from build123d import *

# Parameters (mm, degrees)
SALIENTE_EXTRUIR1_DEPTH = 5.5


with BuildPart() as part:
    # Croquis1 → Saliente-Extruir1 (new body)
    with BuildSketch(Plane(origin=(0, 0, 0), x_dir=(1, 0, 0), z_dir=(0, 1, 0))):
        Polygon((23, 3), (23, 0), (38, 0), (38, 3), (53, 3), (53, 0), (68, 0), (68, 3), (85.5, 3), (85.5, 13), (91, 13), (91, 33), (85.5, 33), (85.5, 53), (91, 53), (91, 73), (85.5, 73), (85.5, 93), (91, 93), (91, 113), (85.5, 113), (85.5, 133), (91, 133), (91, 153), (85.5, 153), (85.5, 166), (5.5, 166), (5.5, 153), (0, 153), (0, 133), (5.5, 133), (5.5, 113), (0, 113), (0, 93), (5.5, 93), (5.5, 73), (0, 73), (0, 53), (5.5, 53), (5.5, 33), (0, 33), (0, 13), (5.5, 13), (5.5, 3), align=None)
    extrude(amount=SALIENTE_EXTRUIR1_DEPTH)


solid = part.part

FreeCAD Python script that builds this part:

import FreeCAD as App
import Part
import Sketcher
from FreeCAD import Vector

doc = App.newDocument("Part")
body = doc.addObject("PartDesign::Body", "Body")

# Sketch on XZ plane
sketch1 = doc.addObject("Sketcher::SketchObject", "Sketch")
body.addObject(sketch1)
sketch1.AttachmentSupport = (doc.XZ_Plane, [""])
sketch1.MapMode = "FlatFace"
sketch1.addGeometry([
    Part.LineSegment(Vector(23, -3, 0), Vector(23, 0, 0)),  # 0
    Part.LineSegment(Vector(23, 0, 0), Vector(38, 0, 0)),  # 1
    Part.LineSegment(Vector(38, 0, 0), Vector(38, -3, 0)),  # 2
    Part.LineSegment(Vector(38, -3, 0), Vector(53, -3, 0)),  # 3
    Part.LineSegment(Vector(53, -3, 0), Vector(53, 0, 0)),  # 4
    Part.LineSegment(Vector(53, 0, 0), Vector(68, 0, 0)),  # 5
    Part.LineSegment(Vector(68, 0, 0), Vector(68, -3, 0)),  # 6
    Part.LineSegment(Vector(68, -3, 0), Vector(85.5, -3, 0)),  # 7
    Part.LineSegment(Vector(85.5, -3, 0), Vector(85.5, -13, 0)),  # 8
    Part.LineSegment(Vector(85.5, -13, 0), Vector(91, -13, 0)),  # 9
    Part.LineSegment(Vector(91, -13, 0), Vector(91, -33, 0)),  # 10
    Part.LineSegment(Vector(91, -33, 0), Vector(85.5, -33, 0)),  # 11
    Part.LineSegment(Vector(85.5, -33, 0), Vector(85.5, -53, 0)),  # 12
    Part.LineSegment(Vector(85.5, -53, 0), Vector(91, -53, 0)),  # 13
    Part.LineSegment(Vector(91, -53, 0), Vector(91, -73, 0)),  # 14
    Part.LineSegment(Vector(91, -73, 0), Vector(85.5, -73, 0)),  # 15
    Part.LineSegment(Vector(85.5, -73, 0), Vector(85.5, -93, 0)),  # 16
    Part.LineSegment(Vector(85.5, -93, 0), Vector(91, -93, 0)),  # 17
    Part.LineSegment(Vector(91, -93, 0), Vector(91, -113, 0)),  # 18
    Part.LineSegment(Vector(91, -113, 0), Vector(85.5, -113, 0)),  # 19
    Part.LineSegment(Vector(85.5, -113, 0), Vector(85.5, -133, 0)),  # 20
    Part.LineSegment(Vector(85.5, -133, 0), Vector(91, -133, 0)),  # 21
    Part.LineSegment(Vector(91, -133, 0), Vector(91, -153, 0)),  # 22
    Part.LineSegment(Vector(91, -153, 0), Vector(85.5, -153, 0)),  # 23
    Part.LineSegment(Vector(85.5, -153, 0), Vector(85.5, -166, 0)),  # 24
    Part.LineSegment(Vector(85.5, -166, 0), Vector(5.5, -166, 0)),  # 25
    Part.LineSegment(Vector(5.5, -166, 0), Vector(5.5, -153, 0)),  # 26
    Part.LineSegment(Vector(5.5, -153, 0), Vector(0, -153, 0)),  # 27
    Part.LineSegment(Vector(0, -153, 0), Vector(0, -133, 0)),  # 28
    Part.LineSegment(Vector(0, -133, 0), Vector(5.5, -133, 0)),  # 29
    Part.LineSegment(Vector(5.5, -133, 0), Vector(5.5, -113, 0)),  # 30
    Part.LineSegment(Vector(5.5, -113, 0), Vector(0, -113, 0)),  # 31
    Part.LineSegment(Vector(0, -113, 0), Vector(0, -93, 0)),  # 32
    Part.LineSegment(Vector(0, -93, 0), Vector(5.5, -93, 0)),  # 33
    Part.LineSegment(Vector(5.5, -93, 0), Vector(5.5, -73, 0)),  # 34
    Part.LineSegment(Vector(5.5, -73, 0), Vector(0, -73, 0)),  # 35
    Part.LineSegment(Vector(0, -73, 0), Vector(0, -53, 0)),  # 36
    Part.LineSegment(Vector(0, -53, 0), Vector(5.5, -53, 0)),  # 37
    Part.LineSegment(Vector(5.5, -53, 0), Vector(5.5, -33, 0)),  # 38
    Part.LineSegment(Vector(5.5, -33, 0), Vector(0, -33, 0)),  # 39
    Part.LineSegment(Vector(0, -33, 0), Vector(0, -13, 0)),  # 40
    Part.LineSegment(Vector(0, -13, 0), Vector(5.5, -13, 0)),  # 41
    Part.LineSegment(Vector(5.5, -13, 0), Vector(5.5, -3, 0)),  # 42
    Part.LineSegment(Vector(5.5, -3, 0), Vector(23, -3, 0)),  # 43
], False)
sketch1.addConstraint([
    Sketcher.Constraint("Coincident", 0, 2, 1, 1),
    Sketcher.Constraint("Coincident", 1, 2, 2, 1),
    Sketcher.Constraint("Coincident", 2, 2, 3, 1),
    Sketcher.Constraint("Coincident", 3, 2, 4, 1),
    Sketcher.Constraint("Coincident", 4, 2, 5, 1),
    Sketcher.Constraint("Coincident", 5, 2, 6, 1),
    Sketcher.Constraint("Coincident", 6, 2, 7, 1),
    Sketcher.Constraint("Coincident", 7, 2, 8, 1),
    Sketcher.Constraint("Coincident", 8, 2, 9, 1),
    Sketcher.Constraint("Coincident", 9, 2, 10, 1),
    Sketcher.Constraint("Coincident", 10, 2, 11, 1),
    Sketcher.Constraint("Coincident", 11, 2, 12, 1),
    Sketcher.Constraint("Coincident", 12, 2, 13, 1),
    Sketcher.Constraint("Coincident", 13, 2, 14, 1),
    Sketcher.Constraint("Coincident", 14, 2, 15, 1),
    Sketcher.Constraint("Coincident", 15, 2, 16, 1),
    Sketcher.Constraint("Coincident", 16, 2, 17, 1),
    Sketcher.Constraint("Coincident", 17, 2, 18, 1),
    Sketcher.Constraint("Coincident", 18, 2, 19, 1),
    Sketcher.Constraint("Coincident", 19, 2, 20, 1),
    Sketcher.Constraint("Coincident", 20, 2, 21, 1),
    Sketcher.Constraint("Coincident", 21, 2, 22, 1),
    Sketcher.Constraint("Coincident", 22, 2, 23, 1),
    Sketcher.Constraint("Coincident", 23, 2, 24, 1),
    Sketcher.Constraint("Coincident", 24, 2, 25, 1),
    Sketcher.Constraint("Coincident", 25, 2, 26, 1),
    Sketcher.Constraint("Coincident", 26, 2, 27, 1),
    Sketcher.Constraint("Coincident", 27, 2, 28, 1),
    Sketcher.Constraint("Coincident", 28, 2, 29, 1),
    Sketcher.Constraint("Coincident", 29, 2, 30, 1),
    Sketcher.Constraint("Coincident", 30, 2, 31, 1),
    Sketcher.Constraint("Coincident", 31, 2, 32, 1),
    Sketcher.Constraint("Coincident", 32, 2, 33, 1),
    Sketcher.Constraint("Coincident", 33, 2, 34, 1),
    Sketcher.Constraint("Coincident", 34, 2, 35, 1),
    Sketcher.Constraint("Coincident", 35, 2, 36, 1),
    Sketcher.Constraint("Coincident", 36, 2, 37, 1),
    Sketcher.Constraint("Coincident", 37, 2, 38, 1),
    Sketcher.Constraint("Coincident", 38, 2, 39, 1),
    Sketcher.Constraint("Coincident", 39, 2, 40, 1),
    Sketcher.Constraint("Coincident", 40, 2, 41, 1),
    Sketcher.Constraint("Coincident", 41, 2, 42, 1),
    Sketcher.Constraint("Coincident", 42, 2, 43, 1),
    Sketcher.Constraint("Coincident", 43, 2, 0, 1),
    Sketcher.Constraint("Vertical", 0),
    Sketcher.Constraint("Horizontal", 1),
    Sketcher.Constraint("Vertical", 2),
    Sketcher.Constraint("Horizontal", 3),
    Sketcher.Constraint("Vertical", 4),
    Sketcher.Constraint("Horizontal", 5),
    Sketcher.Constraint("Vertical", 6),
    Sketcher.Constraint("Horizontal", 7),
    Sketcher.Constraint("Vertical", 8),
    Sketcher.Constraint("Horizontal", 9),
    Sketcher.Constraint("Vertical", 10),
    Sketcher.Constraint("Horizontal", 11),
    Sketcher.Constraint("Vertical", 12),
    Sketcher.Constraint("Horizontal", 13),
    Sketcher.Constraint("Vertical", 14),
    Sketcher.Constraint("Horizontal", 15),
    Sketcher.Constraint("Vertical", 16),
    Sketcher.Constraint("Horizontal", 17),
    Sketcher.Constraint("Vertical", 18),
    Sketcher.Constraint("Horizontal", 19),
    Sketcher.Constraint("Vertical", 20),
    Sketcher.Constraint("Horizontal", 21),
    Sketcher.Constraint("Vertical", 22),
    Sketcher.Constraint("Horizontal", 23),
    Sketcher.Constraint("Vertical", 24),
    Sketcher.Constraint("Horizontal", 25),
    Sketcher.Constraint("Vertical", 26),
    Sketcher.Constraint("Horizontal", 27),
    Sketcher.Constraint("Vertical", 28),
    Sketcher.Constraint("Horizontal", 29),
    Sketcher.Constraint("Vertical", 30),
    Sketcher.Constraint("Horizontal", 31),
    Sketcher.Constraint("Vertical", 32),
    Sketcher.Constraint("Horizontal", 33),
    Sketcher.Constraint("Vertical", 34),
    Sketcher.Constraint("Horizontal", 35),
    Sketcher.Constraint("Vertical", 36),
    Sketcher.Constraint("Horizontal", 37),
    Sketcher.Constraint("Vertical", 38),
    Sketcher.Constraint("Horizontal", 39),
    Sketcher.Constraint("Vertical", 40),
    Sketcher.Constraint("Horizontal", 41),
    Sketcher.Constraint("Vertical", 42),
    Sketcher.Constraint("Horizontal", 43),
    Sketcher.Constraint("PointOnObject", 0, 2, -1),
    Sketcher.Constraint("PointOnObject", 4, 2, -1),
    Sketcher.Constraint("PointOnObject", 27, 2, -2),
    Sketcher.Constraint("PointOnObject", 31, 2, -2),
    Sketcher.Constraint("PointOnObject", 35, 2, -2),
    Sketcher.Constraint("PointOnObject", 39, 2, -2),
    Sketcher.Constraint("Horizontal", 3, 2, 6, 2),
    Sketcher.Constraint("Horizontal", 23, 2, 26, 2),
    Sketcher.Constraint("Horizontal", 21, 2, 28, 2),
    Sketcher.Constraint("Horizontal", 19, 2, 30, 2),
    Sketcher.Constraint("Horizontal", 17, 2, 32, 2),
    Sketcher.Constraint("Horizontal", 15, 2, 34, 2),
    Sketcher.Constraint("Horizontal", 13, 2, 36, 2),
    Sketcher.Constraint("Horizontal", 11, 2, 38, 2),
    Sketcher.Constraint("Horizontal", 9, 2, 40, 2),
    Sketcher.Constraint("Horizontal", 7, 2, 42, 2),
    Sketcher.Constraint("Vertical", 8, 2, 11, 2),
    Sketcher.Constraint("Vertical", 10, 2, 13, 2),
    Sketcher.Constraint("Vertical", 12, 2, 15, 2),
    Sketcher.Constraint("Vertical", 14, 2, 17, 2),
    Sketcher.Constraint("Vertical", 16, 2, 19, 2),
    Sketcher.Constraint("Vertical", 18, 2, 21, 2),
    Sketcher.Constraint("Vertical", 20, 2, 23, 2),
    Sketcher.Constraint("Vertical", 26, 2, 29, 2),
    Sketcher.Constraint("Vertical", 30, 2, 33, 2),
    Sketcher.Constraint("Vertical", 34, 2, 37, 2),
    Sketcher.Constraint("Vertical", 38, 2, 41, 2),
    Sketcher.Constraint("Equal", 1, 3),
    Sketcher.Constraint("Equal", 3, 5),
    Sketcher.Constraint("Equal", 23, 27),
    Sketcher.Constraint("Equal", 7, 43),
    Sketcher.Constraint("Equal", 10, 12),
    Sketcher.Constraint("Equal", 12, 14),
    Sketcher.Constraint("Equal", 14, 16),
    Sketcher.Constraint("Equal", 16, 18),
    Sketcher.Constraint("Equal", 18, 20),
    Sketcher.Constraint("Equal", 20, 22),
    Sketcher.Constraint("DistanceX", 1, 1, 1, 2, 15.0),
    Sketcher.Constraint("DistanceX", 25, 2, 25, 1, 80.0),
    Sketcher.Constraint("DistanceY", 0, 1, 0, 2, 3.0),
    Sketcher.Constraint("DistanceY", 8, 2, 8, 1, 10.0),
    Sketcher.Constraint("DistanceY", 10, 2, 10, 1, 20.0),
    Sketcher.Constraint("DistanceY", 24, 2, 24, 1, 13.0),
    Sketcher.Constraint("DistanceX", 9, 1, 9, 2, 5.5),
])
pad1 = doc.addObject("PartDesign::Pad", "Pad")
body.addObject(pad1)
pad1.Profile = sketch1
pad1.Length = 5.5
pad1.Reversed = True

doc.recompute()
